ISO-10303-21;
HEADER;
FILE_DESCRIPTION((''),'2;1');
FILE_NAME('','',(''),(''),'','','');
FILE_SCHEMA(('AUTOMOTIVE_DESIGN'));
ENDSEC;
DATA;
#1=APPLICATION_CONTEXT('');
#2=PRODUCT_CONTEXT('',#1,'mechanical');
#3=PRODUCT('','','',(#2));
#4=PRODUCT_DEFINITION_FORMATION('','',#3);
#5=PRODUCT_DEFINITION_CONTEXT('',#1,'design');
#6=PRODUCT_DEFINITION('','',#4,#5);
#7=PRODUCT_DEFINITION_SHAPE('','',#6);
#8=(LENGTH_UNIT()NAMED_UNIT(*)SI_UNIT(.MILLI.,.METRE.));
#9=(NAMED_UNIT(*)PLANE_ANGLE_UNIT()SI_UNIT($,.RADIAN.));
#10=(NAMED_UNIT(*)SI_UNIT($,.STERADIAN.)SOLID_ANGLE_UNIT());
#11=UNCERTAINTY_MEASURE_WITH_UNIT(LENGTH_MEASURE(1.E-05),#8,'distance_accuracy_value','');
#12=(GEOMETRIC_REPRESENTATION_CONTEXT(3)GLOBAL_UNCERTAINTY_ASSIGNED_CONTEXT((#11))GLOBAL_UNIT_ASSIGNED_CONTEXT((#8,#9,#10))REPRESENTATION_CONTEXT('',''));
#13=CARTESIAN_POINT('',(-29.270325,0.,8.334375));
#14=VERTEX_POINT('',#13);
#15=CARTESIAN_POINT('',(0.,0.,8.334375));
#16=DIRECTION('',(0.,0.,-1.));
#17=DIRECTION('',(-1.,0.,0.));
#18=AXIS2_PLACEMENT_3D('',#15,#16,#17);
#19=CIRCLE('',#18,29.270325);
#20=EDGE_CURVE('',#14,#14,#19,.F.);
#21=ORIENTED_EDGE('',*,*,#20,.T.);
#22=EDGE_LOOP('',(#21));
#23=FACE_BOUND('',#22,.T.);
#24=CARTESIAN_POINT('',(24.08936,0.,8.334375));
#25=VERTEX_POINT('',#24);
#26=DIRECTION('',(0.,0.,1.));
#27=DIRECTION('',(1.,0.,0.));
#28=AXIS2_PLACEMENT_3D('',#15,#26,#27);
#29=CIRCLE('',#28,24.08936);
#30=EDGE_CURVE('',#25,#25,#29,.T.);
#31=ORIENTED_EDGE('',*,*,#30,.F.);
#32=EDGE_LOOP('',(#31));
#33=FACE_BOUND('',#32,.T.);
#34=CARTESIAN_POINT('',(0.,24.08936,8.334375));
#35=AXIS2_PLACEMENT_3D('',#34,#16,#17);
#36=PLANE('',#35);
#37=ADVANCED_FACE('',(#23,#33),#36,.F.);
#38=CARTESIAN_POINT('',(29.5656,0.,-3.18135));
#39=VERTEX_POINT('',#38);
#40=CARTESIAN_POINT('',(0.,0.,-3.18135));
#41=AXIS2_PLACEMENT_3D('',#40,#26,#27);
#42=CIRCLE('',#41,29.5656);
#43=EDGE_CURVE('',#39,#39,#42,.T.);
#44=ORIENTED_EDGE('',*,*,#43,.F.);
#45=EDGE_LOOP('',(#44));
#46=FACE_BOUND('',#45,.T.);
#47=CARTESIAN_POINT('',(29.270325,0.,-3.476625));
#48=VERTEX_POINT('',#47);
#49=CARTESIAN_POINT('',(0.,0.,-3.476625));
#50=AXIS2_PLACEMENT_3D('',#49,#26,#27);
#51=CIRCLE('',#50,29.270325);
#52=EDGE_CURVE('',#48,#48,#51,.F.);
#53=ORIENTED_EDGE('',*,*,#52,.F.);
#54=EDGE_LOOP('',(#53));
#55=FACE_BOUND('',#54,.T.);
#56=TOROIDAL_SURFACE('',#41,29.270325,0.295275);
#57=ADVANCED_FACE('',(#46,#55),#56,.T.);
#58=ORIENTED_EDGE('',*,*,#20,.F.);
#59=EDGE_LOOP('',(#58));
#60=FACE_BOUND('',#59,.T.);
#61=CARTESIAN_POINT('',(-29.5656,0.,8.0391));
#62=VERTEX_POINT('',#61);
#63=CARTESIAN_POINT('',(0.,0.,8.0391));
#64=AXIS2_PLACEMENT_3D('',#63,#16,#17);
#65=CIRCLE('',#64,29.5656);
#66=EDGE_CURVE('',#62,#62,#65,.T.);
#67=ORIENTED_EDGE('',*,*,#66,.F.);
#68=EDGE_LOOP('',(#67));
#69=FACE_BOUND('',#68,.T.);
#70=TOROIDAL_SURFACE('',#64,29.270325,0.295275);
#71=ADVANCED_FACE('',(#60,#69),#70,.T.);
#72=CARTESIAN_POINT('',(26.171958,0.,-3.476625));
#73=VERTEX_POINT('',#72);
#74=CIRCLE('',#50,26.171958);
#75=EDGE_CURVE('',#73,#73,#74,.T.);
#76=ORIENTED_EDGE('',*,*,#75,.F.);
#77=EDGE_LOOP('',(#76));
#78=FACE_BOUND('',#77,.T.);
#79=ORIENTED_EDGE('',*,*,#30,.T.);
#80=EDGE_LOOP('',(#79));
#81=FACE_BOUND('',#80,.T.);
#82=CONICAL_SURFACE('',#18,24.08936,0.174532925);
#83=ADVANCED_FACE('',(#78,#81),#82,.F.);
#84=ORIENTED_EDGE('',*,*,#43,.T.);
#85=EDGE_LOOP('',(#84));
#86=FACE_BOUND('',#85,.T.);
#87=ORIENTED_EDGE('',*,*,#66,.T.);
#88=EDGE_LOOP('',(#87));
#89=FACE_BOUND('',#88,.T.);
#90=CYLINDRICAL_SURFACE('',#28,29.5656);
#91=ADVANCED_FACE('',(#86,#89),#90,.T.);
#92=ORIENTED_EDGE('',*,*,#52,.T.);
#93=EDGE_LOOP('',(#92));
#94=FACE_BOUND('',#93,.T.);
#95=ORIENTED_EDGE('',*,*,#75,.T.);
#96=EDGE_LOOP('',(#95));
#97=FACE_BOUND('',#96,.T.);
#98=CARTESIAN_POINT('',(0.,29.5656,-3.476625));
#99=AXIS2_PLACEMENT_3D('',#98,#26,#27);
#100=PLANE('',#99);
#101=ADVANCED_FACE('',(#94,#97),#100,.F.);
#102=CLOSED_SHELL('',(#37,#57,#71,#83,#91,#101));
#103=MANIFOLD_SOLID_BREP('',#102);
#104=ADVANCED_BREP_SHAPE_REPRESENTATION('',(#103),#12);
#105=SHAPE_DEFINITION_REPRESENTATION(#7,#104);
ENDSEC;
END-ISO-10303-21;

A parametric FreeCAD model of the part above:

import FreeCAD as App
import Part
import Sketcher

V = App.Vector
Q = App.Units.Quantity


def edges_at(feature, points):
    """Names of the edges that pass closest to the given points."""
    edges = feature.Shape.Edges
    near = lambda p: min(range(len(edges)), key=lambda i: edges[i].distToShape(Part.Vertex(*p))[0])
    return sorted({f"Edge{near(p) + 1}" for p in points})


def add_polygon(sketch, points):
    """Adds a closed chain of lines whose ends are joined by coincident constraints."""
    first, n = sketch.GeometryCount, len(points)
    for a, b in zip(points, points[1:] + points[:1]):
        sketch.addGeometry(Part.LineSegment(App.Vector(*a, 0), App.Vector(*b, 0)), False)
    for i in range(n):
        sketch.addConstraint(Sketcher.Constraint("Coincident", first + i, 2, first + (i + 1) % n, 1))

doc = App.newDocument("Part")
body = doc.addObject("PartDesign::Body", "Body")

# Sketch on YZ plane
sketch1 = body.newObject("Sketcher::SketchObject", "Sketch")
sketch1.AttachmentSupport = (doc.getObject("YZ_Plane"), [""])
sketch1.MapMode = "FlatFace"
add_polygon(sketch1, [(29.6, -3.5), (29.6, 8.3), (24.1, 8.3), (26.2, -3.5)])  # lines 0-3
sketch1.addConstraint(Sketcher.Constraint("Vertical", 0))
sketch1.addConstraint(Sketcher.Constraint("Horizontal", 1))
sketch1.addConstraint(Sketcher.Constraint("Horizontal", 3))
sketch1.addConstraint(Sketcher.Constraint("Angle", 2, Q("-80 deg")))
sketch1.addConstraint(Sketcher.Constraint("DistanceY", 0, 1, 0, 2, Q("0.465 in")))
sketch1.addConstraint(Sketcher.Constraint("DistanceX", 1, 2, 1, 1, Q("0.2156 in")))
sketch1.addConstraint(Sketcher.Constraint("DistanceX", -1, 1, 0, 2, Q("1.164 in")))
sketch1.addConstraint(Sketcher.Constraint("DistanceY", -1, 1, 0, 2, Q("0.328125 in")))
revolution = body.newObject("PartDesign::Revolution", "Revolution")
revolution.Profile = sketch1
revolution.ReferenceAxis = (sketch1, ["V_Axis"])
revolution.Angle = 360
doc.recompute()

fillet = body.newObject("PartDesign::Fillet", "Fillet")
fillet.Base = (revolution, edges_at(revolution, [(-29.566, 0, -3.477), (-29.566, 0, 8.334)]))
fillet.Radius = 0.295275

doc.recompute()
